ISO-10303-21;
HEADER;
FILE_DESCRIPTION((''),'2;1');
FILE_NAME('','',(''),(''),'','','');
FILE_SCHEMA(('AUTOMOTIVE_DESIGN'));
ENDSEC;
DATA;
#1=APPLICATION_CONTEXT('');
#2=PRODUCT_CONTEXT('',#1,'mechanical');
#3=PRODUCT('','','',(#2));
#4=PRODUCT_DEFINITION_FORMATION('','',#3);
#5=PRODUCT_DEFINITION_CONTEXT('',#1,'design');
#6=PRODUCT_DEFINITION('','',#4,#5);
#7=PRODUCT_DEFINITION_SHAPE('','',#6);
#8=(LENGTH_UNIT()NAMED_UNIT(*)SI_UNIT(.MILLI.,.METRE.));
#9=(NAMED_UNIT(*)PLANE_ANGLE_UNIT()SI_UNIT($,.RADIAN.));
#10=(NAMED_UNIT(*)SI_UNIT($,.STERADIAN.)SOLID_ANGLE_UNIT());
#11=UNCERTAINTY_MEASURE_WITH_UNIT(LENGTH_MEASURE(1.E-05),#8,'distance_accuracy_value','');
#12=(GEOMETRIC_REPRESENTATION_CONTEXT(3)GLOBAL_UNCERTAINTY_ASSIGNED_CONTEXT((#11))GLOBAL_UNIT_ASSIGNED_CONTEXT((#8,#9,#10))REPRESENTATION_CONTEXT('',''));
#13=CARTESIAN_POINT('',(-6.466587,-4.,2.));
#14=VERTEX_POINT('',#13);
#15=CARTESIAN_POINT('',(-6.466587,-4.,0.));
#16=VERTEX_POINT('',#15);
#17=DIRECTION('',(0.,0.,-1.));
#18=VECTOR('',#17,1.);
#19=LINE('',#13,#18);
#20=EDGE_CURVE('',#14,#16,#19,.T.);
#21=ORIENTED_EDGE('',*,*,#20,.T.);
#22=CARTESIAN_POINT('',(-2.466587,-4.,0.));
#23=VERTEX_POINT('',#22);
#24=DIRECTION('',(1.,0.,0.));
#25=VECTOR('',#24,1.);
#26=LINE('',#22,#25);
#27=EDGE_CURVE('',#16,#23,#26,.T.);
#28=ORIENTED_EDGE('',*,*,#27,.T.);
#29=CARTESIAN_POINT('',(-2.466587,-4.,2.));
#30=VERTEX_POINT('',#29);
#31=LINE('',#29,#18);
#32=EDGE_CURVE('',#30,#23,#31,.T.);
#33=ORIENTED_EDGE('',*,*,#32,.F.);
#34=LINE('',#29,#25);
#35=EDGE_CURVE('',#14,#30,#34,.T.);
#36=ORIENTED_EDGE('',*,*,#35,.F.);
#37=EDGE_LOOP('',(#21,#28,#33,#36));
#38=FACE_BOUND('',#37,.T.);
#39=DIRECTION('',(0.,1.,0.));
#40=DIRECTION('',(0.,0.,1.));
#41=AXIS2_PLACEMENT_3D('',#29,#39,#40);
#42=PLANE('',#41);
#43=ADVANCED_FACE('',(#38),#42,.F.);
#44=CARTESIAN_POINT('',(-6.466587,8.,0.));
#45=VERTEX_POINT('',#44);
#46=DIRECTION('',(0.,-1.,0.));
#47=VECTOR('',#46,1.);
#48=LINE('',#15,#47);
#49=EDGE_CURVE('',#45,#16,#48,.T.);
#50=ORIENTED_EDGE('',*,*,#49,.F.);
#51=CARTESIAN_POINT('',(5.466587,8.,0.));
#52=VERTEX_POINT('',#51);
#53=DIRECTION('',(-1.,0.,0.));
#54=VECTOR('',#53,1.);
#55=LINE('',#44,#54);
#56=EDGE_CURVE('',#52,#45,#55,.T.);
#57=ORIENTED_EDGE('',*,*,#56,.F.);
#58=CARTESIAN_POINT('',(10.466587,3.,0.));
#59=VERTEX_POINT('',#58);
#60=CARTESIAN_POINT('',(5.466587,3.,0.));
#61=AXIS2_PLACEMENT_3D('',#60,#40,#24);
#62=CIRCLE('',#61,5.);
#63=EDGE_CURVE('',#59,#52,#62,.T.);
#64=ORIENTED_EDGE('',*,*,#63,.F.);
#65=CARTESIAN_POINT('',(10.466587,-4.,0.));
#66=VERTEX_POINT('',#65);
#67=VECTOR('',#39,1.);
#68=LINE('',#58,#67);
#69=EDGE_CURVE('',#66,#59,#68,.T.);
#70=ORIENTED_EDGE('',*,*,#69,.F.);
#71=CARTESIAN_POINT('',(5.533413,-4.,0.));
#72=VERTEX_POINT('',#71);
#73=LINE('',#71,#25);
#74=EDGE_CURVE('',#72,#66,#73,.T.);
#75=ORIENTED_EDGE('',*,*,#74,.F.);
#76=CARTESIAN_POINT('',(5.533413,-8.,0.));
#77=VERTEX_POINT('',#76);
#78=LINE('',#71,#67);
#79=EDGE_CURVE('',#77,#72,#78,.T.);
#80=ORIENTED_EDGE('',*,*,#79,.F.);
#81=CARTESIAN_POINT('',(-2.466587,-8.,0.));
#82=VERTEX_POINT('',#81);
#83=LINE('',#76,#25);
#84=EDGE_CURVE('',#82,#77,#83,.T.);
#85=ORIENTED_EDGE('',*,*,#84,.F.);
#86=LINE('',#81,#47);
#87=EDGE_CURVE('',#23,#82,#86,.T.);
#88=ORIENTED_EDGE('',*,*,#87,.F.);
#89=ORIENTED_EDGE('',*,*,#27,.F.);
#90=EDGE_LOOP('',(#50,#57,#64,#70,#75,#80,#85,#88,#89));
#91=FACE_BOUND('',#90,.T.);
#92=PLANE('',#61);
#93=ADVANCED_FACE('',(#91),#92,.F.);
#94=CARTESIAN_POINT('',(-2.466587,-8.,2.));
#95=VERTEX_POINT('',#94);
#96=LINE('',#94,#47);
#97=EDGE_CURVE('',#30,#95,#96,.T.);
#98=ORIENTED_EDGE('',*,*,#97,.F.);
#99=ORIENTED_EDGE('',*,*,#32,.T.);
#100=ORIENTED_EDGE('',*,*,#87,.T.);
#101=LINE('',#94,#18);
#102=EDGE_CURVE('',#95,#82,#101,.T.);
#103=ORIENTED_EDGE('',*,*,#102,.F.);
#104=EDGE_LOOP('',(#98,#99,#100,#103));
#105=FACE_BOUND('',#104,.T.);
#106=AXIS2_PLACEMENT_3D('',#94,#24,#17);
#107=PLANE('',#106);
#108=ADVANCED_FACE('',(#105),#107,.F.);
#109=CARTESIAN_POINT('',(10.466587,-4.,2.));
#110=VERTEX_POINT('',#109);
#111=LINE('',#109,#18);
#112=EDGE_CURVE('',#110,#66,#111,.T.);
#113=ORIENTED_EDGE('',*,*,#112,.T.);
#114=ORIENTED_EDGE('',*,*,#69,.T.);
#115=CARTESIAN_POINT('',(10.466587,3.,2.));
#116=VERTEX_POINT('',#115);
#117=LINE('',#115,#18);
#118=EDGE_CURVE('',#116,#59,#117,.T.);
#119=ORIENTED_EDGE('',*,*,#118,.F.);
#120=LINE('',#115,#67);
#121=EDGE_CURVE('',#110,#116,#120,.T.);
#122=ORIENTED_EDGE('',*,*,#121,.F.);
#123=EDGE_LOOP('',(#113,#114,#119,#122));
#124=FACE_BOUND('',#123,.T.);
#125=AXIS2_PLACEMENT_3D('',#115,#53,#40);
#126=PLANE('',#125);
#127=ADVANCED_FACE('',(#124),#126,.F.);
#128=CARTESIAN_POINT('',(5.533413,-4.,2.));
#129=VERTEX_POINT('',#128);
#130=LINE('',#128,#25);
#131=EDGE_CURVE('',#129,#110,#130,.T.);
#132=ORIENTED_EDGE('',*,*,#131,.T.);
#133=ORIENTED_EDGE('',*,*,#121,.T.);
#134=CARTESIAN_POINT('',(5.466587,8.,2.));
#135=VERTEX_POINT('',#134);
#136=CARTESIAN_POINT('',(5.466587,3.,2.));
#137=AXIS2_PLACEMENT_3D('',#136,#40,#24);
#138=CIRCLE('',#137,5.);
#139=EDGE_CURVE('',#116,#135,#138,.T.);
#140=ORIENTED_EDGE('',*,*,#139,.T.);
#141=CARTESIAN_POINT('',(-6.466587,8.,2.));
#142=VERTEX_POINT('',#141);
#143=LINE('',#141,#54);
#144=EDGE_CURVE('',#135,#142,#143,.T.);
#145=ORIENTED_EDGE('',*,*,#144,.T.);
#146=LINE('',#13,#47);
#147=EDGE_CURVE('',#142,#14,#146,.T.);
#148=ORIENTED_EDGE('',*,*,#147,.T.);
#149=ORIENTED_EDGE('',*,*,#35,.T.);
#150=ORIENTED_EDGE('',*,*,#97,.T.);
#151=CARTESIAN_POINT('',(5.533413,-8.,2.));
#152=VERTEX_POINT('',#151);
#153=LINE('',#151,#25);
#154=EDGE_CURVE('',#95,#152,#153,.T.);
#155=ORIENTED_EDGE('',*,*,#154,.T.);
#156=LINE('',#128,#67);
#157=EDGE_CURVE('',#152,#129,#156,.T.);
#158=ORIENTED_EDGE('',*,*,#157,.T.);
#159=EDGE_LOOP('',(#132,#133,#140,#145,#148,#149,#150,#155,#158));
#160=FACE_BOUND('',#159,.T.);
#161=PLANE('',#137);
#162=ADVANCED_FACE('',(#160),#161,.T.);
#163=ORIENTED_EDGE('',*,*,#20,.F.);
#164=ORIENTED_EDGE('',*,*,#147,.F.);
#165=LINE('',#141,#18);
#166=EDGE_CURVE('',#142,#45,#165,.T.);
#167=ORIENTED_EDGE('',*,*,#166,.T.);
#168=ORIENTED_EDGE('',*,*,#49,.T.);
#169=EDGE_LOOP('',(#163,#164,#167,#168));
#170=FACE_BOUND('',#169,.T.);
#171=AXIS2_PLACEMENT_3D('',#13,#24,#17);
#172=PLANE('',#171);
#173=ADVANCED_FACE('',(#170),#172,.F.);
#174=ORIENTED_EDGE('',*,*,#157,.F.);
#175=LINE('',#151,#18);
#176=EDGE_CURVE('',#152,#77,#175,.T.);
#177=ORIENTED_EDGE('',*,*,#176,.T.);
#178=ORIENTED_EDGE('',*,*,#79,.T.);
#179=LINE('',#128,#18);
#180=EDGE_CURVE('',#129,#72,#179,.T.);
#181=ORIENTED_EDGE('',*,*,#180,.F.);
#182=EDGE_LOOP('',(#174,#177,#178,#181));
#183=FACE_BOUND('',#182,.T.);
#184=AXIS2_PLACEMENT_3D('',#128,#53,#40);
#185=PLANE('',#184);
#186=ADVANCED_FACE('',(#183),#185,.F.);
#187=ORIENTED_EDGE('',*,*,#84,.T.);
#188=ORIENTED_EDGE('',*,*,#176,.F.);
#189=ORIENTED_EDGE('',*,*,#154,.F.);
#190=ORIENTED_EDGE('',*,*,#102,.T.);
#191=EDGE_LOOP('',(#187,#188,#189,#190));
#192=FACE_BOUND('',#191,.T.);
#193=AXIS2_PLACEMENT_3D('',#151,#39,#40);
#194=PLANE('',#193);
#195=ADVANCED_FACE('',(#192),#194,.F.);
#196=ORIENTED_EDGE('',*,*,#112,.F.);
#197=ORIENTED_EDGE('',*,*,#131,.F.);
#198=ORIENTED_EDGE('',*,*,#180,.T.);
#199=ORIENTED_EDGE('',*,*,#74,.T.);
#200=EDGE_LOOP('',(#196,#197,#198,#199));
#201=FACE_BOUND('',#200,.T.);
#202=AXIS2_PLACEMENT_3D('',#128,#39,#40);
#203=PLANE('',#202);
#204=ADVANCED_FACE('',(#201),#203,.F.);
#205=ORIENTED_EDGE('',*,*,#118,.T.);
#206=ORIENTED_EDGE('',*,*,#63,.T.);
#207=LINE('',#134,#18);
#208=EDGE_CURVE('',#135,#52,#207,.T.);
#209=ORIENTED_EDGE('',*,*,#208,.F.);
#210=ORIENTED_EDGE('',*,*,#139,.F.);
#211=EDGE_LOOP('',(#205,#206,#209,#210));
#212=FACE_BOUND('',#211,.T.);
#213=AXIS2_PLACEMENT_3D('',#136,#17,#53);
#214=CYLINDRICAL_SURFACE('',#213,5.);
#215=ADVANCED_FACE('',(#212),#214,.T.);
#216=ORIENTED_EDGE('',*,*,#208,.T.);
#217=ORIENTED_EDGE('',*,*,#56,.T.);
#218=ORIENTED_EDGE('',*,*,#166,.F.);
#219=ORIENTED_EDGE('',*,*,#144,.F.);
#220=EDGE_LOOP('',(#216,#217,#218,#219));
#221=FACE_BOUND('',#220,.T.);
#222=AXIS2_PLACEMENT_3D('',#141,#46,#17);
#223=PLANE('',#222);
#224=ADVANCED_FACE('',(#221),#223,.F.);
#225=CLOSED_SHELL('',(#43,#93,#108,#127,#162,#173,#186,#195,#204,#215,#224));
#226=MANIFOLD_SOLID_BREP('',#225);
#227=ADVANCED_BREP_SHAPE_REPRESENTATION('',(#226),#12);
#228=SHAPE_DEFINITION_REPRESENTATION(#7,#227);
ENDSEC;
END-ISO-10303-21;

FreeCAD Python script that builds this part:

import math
import FreeCAD as App
import Part
import Sketcher
from FreeCAD import Vector

doc = App.newDocument("Part")
body = doc.addObject("PartDesign::Body", "Body")

sketch1 = body.newObject("Sketcher::SketchObject", "Sketch")
sketch1.AttachmentSupport = (doc.getObject("XY_Plane"), [""])
sketch1.MapMode = "FlatFace"
sketch1.addGeometry([
    Part.LineSegment(Vector(5.5, -4, 0), Vector(10.5, -4, 0)),
    Part.LineSegment(Vector(10.5, -4, 0), Vector(10.5, 3, 0)),
    Part.ArcOfCircle(Part.Circle(Vector(5.5, 3, 0), Vector(0, 0, 1), 5), math.radians(0), math.radians(90)),
    Part.LineSegment(Vector(5.5, 8, 0), Vector(-6.5, 8, 0)),
    Part.LineSegment(Vector(-6.5, 8, 0), Vector(-6.5, -4, 0)),
    Part.LineSegment(Vector(-6.5, -4, 0), Vector(-2.5, -4, 0)),
    Part.LineSegment(Vector(-2.5, -4, 0), Vector(-2.5, -8, 0)),
    Part.LineSegment(Vector(-2.5, -8, 0), Vector(5.5, -8, 0)),
    Part.LineSegment(Vector(5.5, -8, 0), Vector(5.5, -4, 0)),
], False)
sketch1.addConstraint([
    Sketcher.Constraint("Coincident", 0, 2, 1, 1),
    Sketcher.Constraint("Tangent", 1, 2, 2, 1),
    Sketcher.Constraint("Tangent", 2, 2, 3, 1),
    Sketcher.Constraint("Coincident", 3, 2, 4, 1),
    Sketcher.Constraint("Coincident", 4, 2, 5, 1),
    Sketcher.Constraint("Coincident", 5, 2, 6, 1),
    Sketcher.Constraint("Coincident", 6, 2, 7, 1),
    Sketcher.Constraint("Coincident", 7, 2, 8, 1),
    Sketcher.Constraint("Coincident", 8, 2, 0, 1),
    Sketcher.Constraint("Horizontal", 0),
    Sketcher.Constraint("Vertical", 1),
    Sketcher.Constraint("Horizontal", 3),
    Sketcher.Constraint("Vertical", 4),
    Sketcher.Constraint("Horizontal", 5),
    Sketcher.Constraint("Vertical", 6),
    Sketcher.Constraint("Horizontal", 7),
    Sketcher.Constraint("Vertical", 8),
    Sketcher.Constraint("Horizontal", 0, 2, 4, 2),
    Sketcher.Constraint("Equal", 5, 6),
    Sketcher.Constraint("Radius", 2, 5.0),
    Sketcher.Constraint("DistanceX", 5, 1, 5, 2, 4.0),
    Sketcher.Constraint("DistanceX", 7, 1, 7, 2, 8.0),
    Sketcher.Constraint("DistanceY", 1, 1, 1, 2, 7.0),
    Sketcher.Constraint("DistanceY", -1, 1, 2, 3, 3.0),
    Sketcher.Constraint("DistanceX", 0, 1, 0, 2, 4.933174),
    Sketcher.Constraint("DistanceX", -1, 1, 2, 3, 5.466587),
])
pad1 = body.newObject("PartDesign::Pad", "Pad")
pad1.Profile = sketch1
pad1.Length = 2

doc.recompute()
